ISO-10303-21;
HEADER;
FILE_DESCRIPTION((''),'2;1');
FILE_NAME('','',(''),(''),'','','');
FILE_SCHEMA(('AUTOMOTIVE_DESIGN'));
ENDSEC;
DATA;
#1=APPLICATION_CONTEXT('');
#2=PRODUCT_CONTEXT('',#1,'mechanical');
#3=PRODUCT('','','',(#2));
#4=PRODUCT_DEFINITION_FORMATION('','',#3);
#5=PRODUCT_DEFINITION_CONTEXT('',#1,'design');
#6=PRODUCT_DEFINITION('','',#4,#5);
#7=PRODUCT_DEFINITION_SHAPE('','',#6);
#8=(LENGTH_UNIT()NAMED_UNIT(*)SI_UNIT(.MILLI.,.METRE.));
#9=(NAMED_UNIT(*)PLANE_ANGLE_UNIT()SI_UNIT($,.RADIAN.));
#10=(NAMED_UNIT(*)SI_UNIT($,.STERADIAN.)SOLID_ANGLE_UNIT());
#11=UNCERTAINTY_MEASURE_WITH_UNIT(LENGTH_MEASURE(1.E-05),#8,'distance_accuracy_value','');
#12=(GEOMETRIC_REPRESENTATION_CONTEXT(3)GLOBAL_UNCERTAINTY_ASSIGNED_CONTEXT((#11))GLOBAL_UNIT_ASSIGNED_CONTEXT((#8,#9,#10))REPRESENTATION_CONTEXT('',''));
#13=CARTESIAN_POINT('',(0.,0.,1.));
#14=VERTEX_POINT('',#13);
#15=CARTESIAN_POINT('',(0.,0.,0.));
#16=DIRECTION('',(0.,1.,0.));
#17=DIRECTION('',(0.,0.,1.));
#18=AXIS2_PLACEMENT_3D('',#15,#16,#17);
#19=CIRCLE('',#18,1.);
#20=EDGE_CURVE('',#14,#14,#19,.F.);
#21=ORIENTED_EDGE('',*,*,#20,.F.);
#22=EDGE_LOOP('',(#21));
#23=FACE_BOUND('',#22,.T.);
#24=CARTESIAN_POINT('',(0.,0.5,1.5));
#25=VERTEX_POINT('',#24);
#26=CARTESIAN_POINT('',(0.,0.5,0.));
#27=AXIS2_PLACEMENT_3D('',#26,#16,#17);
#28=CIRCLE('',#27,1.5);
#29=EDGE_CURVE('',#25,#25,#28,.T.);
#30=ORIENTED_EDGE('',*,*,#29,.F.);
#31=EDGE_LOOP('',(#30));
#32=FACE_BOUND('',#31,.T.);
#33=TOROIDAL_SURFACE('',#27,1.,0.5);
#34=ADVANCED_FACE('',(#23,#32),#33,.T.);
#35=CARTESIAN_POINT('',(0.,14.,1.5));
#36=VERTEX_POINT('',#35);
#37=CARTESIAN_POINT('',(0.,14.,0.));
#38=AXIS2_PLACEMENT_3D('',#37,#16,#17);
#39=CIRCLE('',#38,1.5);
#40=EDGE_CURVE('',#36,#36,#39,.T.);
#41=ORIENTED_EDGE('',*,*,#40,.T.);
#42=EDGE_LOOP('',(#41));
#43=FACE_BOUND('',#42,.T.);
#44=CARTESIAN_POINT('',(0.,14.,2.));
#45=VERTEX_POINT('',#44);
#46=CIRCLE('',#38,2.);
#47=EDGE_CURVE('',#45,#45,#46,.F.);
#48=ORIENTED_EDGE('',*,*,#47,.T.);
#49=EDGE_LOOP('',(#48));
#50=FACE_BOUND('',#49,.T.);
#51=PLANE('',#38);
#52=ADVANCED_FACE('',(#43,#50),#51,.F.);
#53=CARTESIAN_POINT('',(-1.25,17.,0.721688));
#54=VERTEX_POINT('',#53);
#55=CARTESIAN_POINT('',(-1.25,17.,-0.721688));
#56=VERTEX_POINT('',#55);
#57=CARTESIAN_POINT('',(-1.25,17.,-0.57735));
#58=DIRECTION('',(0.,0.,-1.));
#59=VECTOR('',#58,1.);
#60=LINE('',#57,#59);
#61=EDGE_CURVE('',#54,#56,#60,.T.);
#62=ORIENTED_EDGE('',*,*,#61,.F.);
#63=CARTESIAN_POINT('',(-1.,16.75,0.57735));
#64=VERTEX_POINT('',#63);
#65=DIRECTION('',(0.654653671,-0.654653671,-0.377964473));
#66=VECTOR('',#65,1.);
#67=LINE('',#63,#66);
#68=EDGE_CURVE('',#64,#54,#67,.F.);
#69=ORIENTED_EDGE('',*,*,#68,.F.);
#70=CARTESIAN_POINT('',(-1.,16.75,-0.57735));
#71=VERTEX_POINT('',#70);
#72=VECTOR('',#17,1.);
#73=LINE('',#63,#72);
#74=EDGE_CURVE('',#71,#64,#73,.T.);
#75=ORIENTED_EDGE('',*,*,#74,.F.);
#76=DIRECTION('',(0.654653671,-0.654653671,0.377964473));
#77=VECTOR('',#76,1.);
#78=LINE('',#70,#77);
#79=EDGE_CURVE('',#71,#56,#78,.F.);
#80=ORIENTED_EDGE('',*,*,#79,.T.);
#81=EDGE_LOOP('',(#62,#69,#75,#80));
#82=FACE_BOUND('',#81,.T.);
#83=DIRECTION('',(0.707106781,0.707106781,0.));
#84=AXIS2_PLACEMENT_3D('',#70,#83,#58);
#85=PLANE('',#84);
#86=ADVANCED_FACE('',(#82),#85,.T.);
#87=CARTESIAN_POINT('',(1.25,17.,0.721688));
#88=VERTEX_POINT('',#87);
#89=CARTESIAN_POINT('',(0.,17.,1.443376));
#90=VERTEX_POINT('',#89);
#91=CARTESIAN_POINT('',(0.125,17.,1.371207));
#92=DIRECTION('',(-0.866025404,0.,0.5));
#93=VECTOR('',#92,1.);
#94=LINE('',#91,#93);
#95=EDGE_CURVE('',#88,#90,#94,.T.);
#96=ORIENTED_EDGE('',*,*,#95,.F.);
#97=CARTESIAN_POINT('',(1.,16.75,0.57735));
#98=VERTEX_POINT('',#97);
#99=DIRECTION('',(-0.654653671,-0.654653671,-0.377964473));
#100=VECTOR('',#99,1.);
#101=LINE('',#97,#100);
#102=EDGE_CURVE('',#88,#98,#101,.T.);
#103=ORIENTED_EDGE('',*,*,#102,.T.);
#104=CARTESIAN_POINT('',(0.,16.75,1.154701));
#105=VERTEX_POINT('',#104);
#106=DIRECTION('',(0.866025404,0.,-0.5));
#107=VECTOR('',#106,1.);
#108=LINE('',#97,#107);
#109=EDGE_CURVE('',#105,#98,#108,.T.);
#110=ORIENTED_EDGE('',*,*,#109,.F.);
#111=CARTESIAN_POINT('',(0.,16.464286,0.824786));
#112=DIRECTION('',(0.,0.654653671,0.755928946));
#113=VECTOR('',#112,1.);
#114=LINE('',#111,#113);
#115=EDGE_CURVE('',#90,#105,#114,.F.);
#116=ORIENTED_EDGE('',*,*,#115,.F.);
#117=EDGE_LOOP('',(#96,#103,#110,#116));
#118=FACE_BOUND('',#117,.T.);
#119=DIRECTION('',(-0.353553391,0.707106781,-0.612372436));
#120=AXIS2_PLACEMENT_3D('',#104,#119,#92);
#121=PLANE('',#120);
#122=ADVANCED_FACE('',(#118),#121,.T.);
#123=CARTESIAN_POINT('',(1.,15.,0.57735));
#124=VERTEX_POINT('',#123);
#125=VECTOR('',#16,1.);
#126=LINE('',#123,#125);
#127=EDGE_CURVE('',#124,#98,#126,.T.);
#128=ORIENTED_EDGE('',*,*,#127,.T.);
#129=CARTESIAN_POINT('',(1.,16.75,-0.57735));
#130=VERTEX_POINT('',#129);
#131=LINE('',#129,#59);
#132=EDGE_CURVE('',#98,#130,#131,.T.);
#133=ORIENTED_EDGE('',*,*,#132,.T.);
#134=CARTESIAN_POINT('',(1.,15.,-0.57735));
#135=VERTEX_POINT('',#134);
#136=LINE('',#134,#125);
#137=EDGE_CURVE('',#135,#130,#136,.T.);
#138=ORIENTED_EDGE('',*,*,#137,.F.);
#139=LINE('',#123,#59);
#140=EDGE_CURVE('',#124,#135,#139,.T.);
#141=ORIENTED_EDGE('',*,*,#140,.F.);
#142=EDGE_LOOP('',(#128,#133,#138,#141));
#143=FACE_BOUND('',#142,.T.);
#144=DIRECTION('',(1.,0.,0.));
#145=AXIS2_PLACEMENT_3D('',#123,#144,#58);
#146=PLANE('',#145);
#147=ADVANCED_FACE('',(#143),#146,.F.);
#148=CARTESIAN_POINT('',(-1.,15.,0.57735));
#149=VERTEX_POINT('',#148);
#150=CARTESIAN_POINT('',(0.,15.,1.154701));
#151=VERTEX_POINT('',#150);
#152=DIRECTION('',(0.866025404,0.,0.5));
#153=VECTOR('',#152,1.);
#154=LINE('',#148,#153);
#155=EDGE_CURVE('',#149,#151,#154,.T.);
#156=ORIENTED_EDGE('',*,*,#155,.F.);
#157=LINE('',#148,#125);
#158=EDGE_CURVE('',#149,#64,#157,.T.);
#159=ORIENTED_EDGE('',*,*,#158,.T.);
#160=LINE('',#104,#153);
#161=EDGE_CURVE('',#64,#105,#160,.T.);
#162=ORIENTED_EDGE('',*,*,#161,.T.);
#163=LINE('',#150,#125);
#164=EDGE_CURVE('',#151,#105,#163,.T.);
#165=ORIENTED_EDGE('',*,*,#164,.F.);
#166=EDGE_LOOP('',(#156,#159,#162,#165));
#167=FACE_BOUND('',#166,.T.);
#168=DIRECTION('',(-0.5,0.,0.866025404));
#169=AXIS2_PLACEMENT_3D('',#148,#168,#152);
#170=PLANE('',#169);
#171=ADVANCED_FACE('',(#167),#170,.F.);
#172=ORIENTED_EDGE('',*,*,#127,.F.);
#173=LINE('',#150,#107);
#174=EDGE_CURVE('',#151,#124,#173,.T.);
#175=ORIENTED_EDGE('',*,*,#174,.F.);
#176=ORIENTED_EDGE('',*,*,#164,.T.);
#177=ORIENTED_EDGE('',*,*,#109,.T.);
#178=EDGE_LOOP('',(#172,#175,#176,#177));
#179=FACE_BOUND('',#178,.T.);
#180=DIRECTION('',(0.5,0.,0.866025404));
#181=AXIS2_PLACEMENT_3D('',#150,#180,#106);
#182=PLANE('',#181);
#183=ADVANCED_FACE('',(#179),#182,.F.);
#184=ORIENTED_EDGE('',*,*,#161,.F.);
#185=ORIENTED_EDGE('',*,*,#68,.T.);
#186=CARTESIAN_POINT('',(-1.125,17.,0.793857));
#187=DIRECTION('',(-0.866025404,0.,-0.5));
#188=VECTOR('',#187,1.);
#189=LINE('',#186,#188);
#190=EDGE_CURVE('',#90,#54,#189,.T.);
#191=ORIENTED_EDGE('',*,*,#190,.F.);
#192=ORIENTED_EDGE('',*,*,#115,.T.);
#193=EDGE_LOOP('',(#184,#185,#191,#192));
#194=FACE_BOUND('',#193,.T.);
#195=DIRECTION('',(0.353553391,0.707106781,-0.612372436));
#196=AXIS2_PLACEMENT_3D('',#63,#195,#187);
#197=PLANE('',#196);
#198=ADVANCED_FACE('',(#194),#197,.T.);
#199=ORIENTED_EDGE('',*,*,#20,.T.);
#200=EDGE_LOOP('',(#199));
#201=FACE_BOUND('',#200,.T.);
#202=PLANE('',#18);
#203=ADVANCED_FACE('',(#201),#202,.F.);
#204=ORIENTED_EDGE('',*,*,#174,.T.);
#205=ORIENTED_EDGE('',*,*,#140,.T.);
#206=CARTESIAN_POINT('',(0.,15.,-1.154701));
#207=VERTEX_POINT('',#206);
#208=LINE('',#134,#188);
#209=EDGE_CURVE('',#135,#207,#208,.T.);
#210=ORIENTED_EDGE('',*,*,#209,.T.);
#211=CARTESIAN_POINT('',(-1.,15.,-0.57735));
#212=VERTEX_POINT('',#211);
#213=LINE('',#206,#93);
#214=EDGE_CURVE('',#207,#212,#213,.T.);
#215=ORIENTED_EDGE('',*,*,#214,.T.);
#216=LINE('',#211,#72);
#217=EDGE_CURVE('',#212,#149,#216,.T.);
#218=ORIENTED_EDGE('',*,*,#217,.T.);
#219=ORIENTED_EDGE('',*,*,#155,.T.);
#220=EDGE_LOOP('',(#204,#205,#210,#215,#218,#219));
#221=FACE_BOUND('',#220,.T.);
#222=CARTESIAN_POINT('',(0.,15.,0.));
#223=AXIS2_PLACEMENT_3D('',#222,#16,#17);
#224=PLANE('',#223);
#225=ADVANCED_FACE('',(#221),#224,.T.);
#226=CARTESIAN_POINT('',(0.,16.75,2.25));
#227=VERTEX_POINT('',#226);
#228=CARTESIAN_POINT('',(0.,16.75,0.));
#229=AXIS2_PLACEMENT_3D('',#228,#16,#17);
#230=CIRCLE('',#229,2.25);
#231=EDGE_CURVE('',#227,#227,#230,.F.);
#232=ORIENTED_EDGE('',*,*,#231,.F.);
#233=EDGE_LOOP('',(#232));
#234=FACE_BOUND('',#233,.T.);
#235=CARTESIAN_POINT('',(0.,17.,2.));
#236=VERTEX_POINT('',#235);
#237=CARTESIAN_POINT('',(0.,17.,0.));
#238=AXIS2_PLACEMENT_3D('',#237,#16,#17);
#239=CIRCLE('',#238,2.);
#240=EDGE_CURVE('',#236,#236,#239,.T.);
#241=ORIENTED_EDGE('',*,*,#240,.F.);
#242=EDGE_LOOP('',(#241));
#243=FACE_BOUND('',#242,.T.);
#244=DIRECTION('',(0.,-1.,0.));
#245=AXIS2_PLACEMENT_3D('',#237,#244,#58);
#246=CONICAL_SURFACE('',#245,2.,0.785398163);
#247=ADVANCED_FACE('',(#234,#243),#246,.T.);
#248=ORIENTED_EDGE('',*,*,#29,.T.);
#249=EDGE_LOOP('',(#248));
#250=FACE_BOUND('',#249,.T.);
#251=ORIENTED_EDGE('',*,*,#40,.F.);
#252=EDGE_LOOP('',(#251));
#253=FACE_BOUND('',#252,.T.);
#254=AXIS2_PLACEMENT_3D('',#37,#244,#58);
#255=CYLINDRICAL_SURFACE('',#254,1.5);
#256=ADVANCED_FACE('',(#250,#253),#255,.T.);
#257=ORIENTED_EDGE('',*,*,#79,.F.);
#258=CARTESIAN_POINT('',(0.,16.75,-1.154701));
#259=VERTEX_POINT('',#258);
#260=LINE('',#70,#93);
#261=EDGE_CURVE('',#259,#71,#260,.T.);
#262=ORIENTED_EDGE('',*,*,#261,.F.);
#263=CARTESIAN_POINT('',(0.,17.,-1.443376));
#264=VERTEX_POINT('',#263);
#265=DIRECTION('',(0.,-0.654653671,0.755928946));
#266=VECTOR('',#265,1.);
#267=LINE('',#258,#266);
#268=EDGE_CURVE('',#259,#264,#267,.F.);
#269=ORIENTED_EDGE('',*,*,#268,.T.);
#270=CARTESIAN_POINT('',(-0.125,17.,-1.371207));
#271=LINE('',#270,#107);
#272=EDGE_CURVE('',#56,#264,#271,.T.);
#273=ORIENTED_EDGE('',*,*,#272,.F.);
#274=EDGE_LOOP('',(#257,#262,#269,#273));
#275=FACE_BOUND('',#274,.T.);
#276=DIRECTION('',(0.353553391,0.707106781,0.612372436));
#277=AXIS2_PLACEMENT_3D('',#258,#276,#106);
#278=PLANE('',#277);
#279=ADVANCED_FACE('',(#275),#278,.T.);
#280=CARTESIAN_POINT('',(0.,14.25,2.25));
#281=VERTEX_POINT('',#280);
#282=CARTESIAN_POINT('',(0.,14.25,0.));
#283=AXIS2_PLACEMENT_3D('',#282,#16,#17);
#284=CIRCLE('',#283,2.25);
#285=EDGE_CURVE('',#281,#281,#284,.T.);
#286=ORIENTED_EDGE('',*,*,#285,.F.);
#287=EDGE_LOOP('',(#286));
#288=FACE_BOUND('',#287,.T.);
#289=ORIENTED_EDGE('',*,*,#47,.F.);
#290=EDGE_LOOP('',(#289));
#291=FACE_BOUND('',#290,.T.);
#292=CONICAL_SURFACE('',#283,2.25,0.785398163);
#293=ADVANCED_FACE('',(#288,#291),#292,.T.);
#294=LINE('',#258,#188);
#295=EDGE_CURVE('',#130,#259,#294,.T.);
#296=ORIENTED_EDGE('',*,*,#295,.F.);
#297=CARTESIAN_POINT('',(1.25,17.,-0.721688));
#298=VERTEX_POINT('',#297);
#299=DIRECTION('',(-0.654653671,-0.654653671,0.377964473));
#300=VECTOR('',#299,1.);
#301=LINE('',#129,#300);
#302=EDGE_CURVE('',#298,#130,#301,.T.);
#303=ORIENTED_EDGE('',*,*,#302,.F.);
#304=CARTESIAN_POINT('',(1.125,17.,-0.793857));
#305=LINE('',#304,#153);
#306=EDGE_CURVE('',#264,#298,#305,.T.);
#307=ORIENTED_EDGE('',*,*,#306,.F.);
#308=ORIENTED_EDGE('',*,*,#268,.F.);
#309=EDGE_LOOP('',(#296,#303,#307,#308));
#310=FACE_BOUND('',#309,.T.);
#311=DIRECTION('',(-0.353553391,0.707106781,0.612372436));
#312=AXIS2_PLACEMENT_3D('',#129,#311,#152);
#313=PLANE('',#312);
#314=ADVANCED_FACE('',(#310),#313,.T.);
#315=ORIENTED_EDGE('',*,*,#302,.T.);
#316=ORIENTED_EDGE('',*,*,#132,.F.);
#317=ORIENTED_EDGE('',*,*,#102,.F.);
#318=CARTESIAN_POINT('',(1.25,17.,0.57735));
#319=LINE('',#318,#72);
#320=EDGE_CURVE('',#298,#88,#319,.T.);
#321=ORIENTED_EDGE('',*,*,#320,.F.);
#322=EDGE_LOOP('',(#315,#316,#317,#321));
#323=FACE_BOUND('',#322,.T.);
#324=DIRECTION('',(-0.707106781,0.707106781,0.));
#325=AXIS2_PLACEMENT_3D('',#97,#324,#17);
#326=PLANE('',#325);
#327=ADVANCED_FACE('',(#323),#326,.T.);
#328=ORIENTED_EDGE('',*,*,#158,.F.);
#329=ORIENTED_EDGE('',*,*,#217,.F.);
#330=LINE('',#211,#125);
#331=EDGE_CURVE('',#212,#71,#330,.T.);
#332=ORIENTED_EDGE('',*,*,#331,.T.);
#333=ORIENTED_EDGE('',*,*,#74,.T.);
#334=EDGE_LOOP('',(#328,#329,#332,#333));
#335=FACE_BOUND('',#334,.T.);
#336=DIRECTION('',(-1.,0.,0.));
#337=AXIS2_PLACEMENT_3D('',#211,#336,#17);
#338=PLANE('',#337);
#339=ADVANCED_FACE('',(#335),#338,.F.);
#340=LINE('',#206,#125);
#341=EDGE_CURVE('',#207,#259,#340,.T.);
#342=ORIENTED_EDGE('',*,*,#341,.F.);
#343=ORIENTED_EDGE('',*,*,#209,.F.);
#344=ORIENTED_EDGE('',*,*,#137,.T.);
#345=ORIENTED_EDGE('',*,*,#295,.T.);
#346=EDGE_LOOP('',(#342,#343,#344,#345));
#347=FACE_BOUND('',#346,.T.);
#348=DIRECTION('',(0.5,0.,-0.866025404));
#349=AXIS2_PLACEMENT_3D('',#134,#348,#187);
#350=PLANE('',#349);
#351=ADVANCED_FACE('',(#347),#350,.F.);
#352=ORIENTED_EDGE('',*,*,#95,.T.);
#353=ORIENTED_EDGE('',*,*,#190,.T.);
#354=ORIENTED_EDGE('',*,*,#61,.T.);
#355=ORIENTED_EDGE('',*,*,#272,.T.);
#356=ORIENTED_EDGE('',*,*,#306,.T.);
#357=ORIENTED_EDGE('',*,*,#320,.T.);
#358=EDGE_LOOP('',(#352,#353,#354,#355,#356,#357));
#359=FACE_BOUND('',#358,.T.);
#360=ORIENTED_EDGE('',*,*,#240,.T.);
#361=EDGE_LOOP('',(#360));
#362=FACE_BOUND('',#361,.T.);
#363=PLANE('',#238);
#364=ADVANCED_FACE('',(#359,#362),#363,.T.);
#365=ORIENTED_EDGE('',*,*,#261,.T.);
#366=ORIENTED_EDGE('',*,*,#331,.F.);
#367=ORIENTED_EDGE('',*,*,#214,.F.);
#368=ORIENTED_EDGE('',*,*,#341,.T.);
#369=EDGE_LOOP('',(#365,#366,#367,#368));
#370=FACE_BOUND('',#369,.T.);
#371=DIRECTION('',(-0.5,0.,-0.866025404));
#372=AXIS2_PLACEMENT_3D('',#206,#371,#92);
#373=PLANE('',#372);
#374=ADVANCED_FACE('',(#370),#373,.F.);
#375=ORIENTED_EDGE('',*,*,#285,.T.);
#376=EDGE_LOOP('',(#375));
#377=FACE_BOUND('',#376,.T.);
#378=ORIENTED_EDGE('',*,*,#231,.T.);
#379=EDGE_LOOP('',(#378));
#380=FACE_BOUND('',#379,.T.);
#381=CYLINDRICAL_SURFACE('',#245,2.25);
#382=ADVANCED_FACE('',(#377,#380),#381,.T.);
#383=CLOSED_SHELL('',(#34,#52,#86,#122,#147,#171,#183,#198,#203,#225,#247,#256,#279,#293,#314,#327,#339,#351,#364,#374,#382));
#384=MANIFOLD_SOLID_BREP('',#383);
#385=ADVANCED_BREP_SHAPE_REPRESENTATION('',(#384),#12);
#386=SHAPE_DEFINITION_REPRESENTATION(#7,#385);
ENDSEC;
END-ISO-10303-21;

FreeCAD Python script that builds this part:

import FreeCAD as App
import Part
import Sketcher

V = App.Vector
Q = App.Units.Quantity


def edges_at(feature, points):
    """Names of the edges that pass closest to the given points."""
    edges = feature.Shape.Edges
    near = lambda p: min(range(len(edges)), key=lambda i: edges[i].distToShape(Part.Vertex(*p))[0])
    return sorted({f"Edge{near(p) + 1}" for p in points})

doc = App.newDocument("Part")
params = doc.addObject("Spreadsheet::Sheet", "Params")
for row, (alias, value) in enumerate([
    ("sketch1_diameter", "3 mm"),
    ("pad1_length", "14 mm"),
    ("sketch2_diameter", "4.5 mm"),
    ("pad2_length", "3 mm"),
    ("pocket1_length", "2 mm"),
    ("chamfer_size", "0.25 mm"),
    ("fillet_radius", "0.5 mm"),
], start=1):
    params.set(f"A{row}", alias)
    params.set(f"B{row}", "=" + value)
    params.setAlias(f"B{row}", alias)

body = doc.addObject("PartDesign::Body", "Body")

sketch1 = body.newObject("Sketcher::SketchObject", "Sketch")
sketch1.AttachmentSupport = (doc.getObject("XZ_Plane"), [""])
sketch1.MapMode = "FlatFace"
sketch1.addGeometry(Part.Circle(V(0, 0, 0), V(0, 0, 1), 1.5), False)
sketch1.addConstraint([
    Sketcher.Constraint("Coincident", 0, 3, -1, 1),
    Sketcher.Constraint("Diameter", 0, Q("3 mm")),
])
sketch1.setExpression("Constraints[1]", "Params.sketch1_diameter")
pad1 = body.newObject("PartDesign::Pad", "Pad")
pad1.Profile = sketch1
pad1.setExpression("Length", "Params.pad1_length")
pad1.Reversed = True

sketch2 = body.newObject("Sketcher::SketchObject", "Sketch001")
sketch2.AttachmentSupport = (doc.getObject("XZ_Plane"), [""])
sketch2.MapMode = "FlatFace"
sketch2.AttachmentOffset = App.Placement(V(0, 0, -14), App.Rotation())
sketch2.addGeometry(Part.Circle(V(0, 0, 0), V(0, 0, 1), 2.2), False)
sketch2.addConstraint([
    Sketcher.Constraint("Coincident", 0, 3, -1, 1),
    Sketcher.Constraint("Diameter", 0, Q("4.5 mm")),
])
sketch2.setExpression("Constraints[1]", "Params.sketch2_diameter")
pad2 = body.newObject("PartDesign::Pad", "Pad001")
pad2.Profile = sketch2
pad2.setExpression("Length", "Params.pad2_length")
pad2.Reversed = True

sketch3 = body.newObject("Sketcher::SketchObject", "Sketch002")
sketch3.AttachmentSupport = (doc.getObject("XZ_Plane"), [""])
sketch3.MapMode = "FlatFace"
sketch3.AttachmentOffset = App.Placement(V(0, 0, -17), App.Rotation())
sketch3.addGeometry([
    Part.LineSegment(V(0, -1.2, 0), V(-1, -0.6, 0)),
    Part.LineSegment(V(-1, -0.6, 0), V(-1, 0.6, 0)),
    Part.LineSegment(V(-1, 0.6, 0), V(0, 1.2, 0)),
    Part.LineSegment(V(0, 1.2, 0), V(1, 0.6, 0)),
    Part.LineSegment(V(1, 0.6, 0), V(1, -0.6, 0)),
    Part.LineSegment(V(1, -0.6, 0), V(0, -1.2, 0)),
], False)
sketch3.addConstraint([
    Sketcher.Constraint("Coincident", 0, 2, 1, 1),
    Sketcher.Constraint("Coincident", 1, 2, 2, 1),
    Sketcher.Constraint("Coincident", 2, 2, 3, 1),
    Sketcher.Constraint("Coincident", 3, 2, 4, 1),
    Sketcher.Constraint("Coincident", 4, 2, 5, 1),
    Sketcher.Constraint("Coincident", 5, 2, 0, 1),
    Sketcher.Constraint("Vertical", 1),
    Sketcher.Constraint("Vertical", 4),
    Sketcher.Constraint("Symmetric", 0, 2, 3, 2, -1, 1),
    Sketcher.Constraint("Symmetric", 2, 2, 5, 2, -1, 1),
    Sketcher.Constraint("PointOnObject", 2, 2, -2),
    Sketcher.Constraint("Parallel", 2, 5),
    Sketcher.Constraint("Horizontal", 1, 2, 3, 2),
    Sketcher.Constraint("Angle", 0, Q("150 deg")),
    Sketcher.Constraint("DistanceX", 0, 2, -1, 1, Q("1 mm")),
    Sketcher.Constraint("DistanceY", 1, 1, 1, 2, Q("1.154701 mm")),
])
pocket1 = body.newObject("PartDesign::Pocket", "Pocket")
pocket1.Profile = sketch3
pocket1.setExpression("Length", "Params.pocket1_length")
pocket1.Reversed = True
doc.recompute()

chamfer = body.newObject("PartDesign::Chamfer", "Chamfer")
chamfer.Base = (pocket1, edges_at(pocket1, [
    (0.5, 17, -0.866),
    (-0.5, 17, -0.866),
    (-1, 17, 0),
    (-0.5, 17, 0.866),
    (0.5, 17, 0.866),
    (1, 17, 0),
    (0, 14, -2.25),
    (0, 17, -2.25),
]))
chamfer.setExpression("Size", "Params.chamfer_size")
doc.recompute()

fillet = body.newObject("PartDesign::Fillet", "Fillet")
fillet.Base = (chamfer, edges_at(chamfer, [(0, 0, -1.5)]))
fillet.setExpression("Radius", "Params.fillet_radius")

doc.recompute()
